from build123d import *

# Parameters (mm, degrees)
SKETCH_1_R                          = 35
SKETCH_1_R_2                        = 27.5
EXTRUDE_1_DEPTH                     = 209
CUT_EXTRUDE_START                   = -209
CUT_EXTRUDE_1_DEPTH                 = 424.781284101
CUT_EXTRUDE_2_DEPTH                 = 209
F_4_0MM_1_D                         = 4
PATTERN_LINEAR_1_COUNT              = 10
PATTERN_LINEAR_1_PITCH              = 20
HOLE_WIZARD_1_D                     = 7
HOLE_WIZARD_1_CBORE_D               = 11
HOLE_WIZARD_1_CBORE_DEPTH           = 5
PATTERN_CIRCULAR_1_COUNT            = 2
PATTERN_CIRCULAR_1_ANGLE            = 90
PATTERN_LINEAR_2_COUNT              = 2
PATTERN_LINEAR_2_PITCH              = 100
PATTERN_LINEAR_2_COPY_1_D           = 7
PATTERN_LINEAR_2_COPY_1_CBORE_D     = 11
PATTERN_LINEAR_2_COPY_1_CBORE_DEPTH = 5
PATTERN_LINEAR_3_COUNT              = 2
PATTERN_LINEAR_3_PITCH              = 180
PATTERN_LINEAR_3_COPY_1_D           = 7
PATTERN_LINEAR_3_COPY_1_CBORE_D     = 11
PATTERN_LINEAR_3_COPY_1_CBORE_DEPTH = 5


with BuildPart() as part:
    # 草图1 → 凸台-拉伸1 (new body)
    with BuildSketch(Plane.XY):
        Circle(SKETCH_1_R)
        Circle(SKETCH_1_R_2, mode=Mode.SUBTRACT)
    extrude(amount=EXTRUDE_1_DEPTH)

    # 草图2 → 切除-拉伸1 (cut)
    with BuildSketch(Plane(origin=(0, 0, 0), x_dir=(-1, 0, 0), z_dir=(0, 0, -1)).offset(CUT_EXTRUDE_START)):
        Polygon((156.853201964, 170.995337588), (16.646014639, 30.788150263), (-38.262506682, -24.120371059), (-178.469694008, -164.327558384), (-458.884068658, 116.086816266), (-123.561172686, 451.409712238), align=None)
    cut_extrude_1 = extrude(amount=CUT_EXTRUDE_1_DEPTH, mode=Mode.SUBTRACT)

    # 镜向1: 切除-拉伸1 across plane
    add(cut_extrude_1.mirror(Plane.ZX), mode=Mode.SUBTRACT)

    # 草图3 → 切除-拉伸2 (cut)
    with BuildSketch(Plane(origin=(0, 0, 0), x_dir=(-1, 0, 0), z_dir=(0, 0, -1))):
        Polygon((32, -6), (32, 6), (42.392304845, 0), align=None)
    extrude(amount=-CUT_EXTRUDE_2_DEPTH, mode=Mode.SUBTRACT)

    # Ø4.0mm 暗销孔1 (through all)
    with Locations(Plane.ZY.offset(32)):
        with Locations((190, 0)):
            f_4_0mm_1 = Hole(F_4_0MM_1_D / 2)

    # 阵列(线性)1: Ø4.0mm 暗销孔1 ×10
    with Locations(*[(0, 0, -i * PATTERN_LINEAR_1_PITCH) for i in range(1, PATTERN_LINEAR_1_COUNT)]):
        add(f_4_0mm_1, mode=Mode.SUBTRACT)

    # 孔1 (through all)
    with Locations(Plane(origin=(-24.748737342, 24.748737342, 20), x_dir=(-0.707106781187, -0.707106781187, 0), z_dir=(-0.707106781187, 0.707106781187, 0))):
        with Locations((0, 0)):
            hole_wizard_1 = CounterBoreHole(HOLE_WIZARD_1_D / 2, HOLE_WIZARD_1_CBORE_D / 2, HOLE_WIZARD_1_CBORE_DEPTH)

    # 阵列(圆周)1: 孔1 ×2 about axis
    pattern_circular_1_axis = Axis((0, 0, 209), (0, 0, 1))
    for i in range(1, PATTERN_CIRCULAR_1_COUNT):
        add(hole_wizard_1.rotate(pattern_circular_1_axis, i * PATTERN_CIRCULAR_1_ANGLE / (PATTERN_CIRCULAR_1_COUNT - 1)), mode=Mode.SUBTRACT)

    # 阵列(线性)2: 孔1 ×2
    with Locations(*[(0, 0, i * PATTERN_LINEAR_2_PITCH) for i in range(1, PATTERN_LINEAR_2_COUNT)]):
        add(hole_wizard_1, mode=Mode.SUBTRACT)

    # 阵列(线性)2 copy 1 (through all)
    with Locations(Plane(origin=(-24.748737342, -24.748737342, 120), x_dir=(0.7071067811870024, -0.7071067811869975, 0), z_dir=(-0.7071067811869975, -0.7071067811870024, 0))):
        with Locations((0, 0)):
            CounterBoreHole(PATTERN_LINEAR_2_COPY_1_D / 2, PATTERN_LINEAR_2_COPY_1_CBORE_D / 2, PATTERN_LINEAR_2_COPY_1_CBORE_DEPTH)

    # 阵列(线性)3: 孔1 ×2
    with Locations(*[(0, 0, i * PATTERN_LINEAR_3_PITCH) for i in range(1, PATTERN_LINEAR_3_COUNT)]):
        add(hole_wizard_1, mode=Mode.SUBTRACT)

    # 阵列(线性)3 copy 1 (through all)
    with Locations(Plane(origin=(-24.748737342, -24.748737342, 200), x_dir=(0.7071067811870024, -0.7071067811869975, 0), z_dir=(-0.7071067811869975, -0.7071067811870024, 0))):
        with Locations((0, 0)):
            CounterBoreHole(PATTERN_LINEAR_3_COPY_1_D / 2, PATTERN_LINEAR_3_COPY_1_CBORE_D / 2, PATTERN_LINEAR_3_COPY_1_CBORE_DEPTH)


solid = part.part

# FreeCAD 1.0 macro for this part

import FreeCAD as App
import Part
import Sketcher
Q = App.Units.Quantity


def add_polygon(sketch, points):
    """Adds a closed chain of lines whose ends are joined by coincident constraints."""
    first, n = sketch.GeometryCount, len(points)
    for a, b in zip(points, points[1:] + points[:1]):
        sketch.addGeometry(Part.LineSegment(App.Vector(*a, 0), App.Vector(*b, 0)), False)
    for i in range(n):
        sketch.addConstraint(Sketcher.Constraint("Coincident", first + i, 2, first + (i + 1) % n, 1))

doc = App.newDocument("Part")
body = doc.addObject("PartDesign::Body", "Body")

# Sketch on XY plane
sketch1 = doc.addObject("Sketcher::SketchObject", "Sketch")
body.addObject(sketch1)
sketch1.AttachmentSupport = (doc.XY_Plane, [""])
sketch1.MapMode = "FlatFace"
sketch1.addGeometry([
    Part.Circle(App.Vector(0, 0, 0), App.Vector(0, 0, 1), 35),
    Part.Circle(App.Vector(0, 0, 0), App.Vector(0, 0, 1), 28),
], False)
sketch1.addConstraint([
    Sketcher.Constraint("Coincident", 0, 3, -1, 1),
    Sketcher.Constraint("Coincident", 1, 3, -1, 1),
    Sketcher.Constraint("Diameter", 0, Q("70 mm")),
    Sketcher.Constraint("Diameter", 1, Q("55 mm")),
])
pad1 = doc.addObject("PartDesign::Pad", "Pad")
body.addObject(pad1)
pad1.Profile = sketch1
pad1.Length = 209

# Sketch on XY plane
sketch2 = doc.addObject("Sketcher::SketchObject", "Sketch001")
body.addObject(sketch2)
sketch2.AttachmentSupport = (doc.XY_Plane, [""])
sketch2.MapMode = "FlatFace"
sketch2.AttachmentOffset = App.Placement(App.Vector(0, 0, 209), App.Rotation())
add_polygon(sketch2, [(-17, 31), (-157, 171), (124, 451), (459, 116), (178, -164), (38, -24)])  # lines 0-5
sketch2.addConstraint([
    Sketcher.Constraint("Perpendicular", 0, 1),
    Sketcher.Constraint("Perpendicular", 1, 2),
    Sketcher.Constraint("Perpendicular", 2, 3),
    Sketcher.Constraint("Perpendicular", 3, 4),
    Sketcher.Constraint("Parallel", 4, 5),
    Sketcher.Constraint("Equal", 0, 4),
    Sketcher.Constraint("Angle", 0, Q("135 deg")),
    Sketcher.Constraint("DistanceX", 0, 2, -1, 1, Q("156.853202 mm")),
    Sketcher.Constraint("Distance", 1, Q("396.565812 mm")),
    Sketcher.Constraint("DistanceX", -1, 1, 2, 2, Q("458.884069 mm")),
    Sketcher.Constraint("DistanceY", 3, 2, -1, 1, Q("164.327558 mm")),
    Sketcher.Constraint("DistanceY", 4, 2, -1, 1, Q("24.120371 mm")),
])
pocket1 = doc.addObject("PartDesign::Pocket", "Pocket")
body.addObject(pocket1)
pocket1.Profile = sketch2
pocket1.Length = 424.781284
doc.recompute()

mirrored = doc.addObject("PartDesign::Mirrored", "Mirrored")
body.addObject(mirrored)
mirrored.Originals = [pocket1]
mirrored.MirrorPlane = (doc.XZ_Plane, [""])
body.Tip = mirrored

# Sketch on XY plane
sketch3 = doc.addObject("Sketcher::SketchObject", "Sketch002")
body.addObject(sketch3)
sketch3.AttachmentSupport = (doc.XY_Plane, [""])
sketch3.MapMode = "FlatFace"
add_polygon(sketch3, [(-32, 6), (-32, -6), (-42, 0)])  # lines 0-2
sketch3.addConstraint([
    Sketcher.Constraint("Vertical", 0),
    Sketcher.Constraint("PointOnObject", 1, 2, -1),
    Sketcher.Constraint("Equal", 1, 2),
    Sketcher.Constraint("DistanceY", 0, 2, 0, 1, Q("12 mm")),
    Sketcher.Constraint("Angle", 1, Q("150 deg")),
    Sketcher.Constraint("DistanceX", 0, 2, -1, 1, Q("32 mm")),
])
pocket2 = doc.addObject("PartDesign::Pocket", "Pocket001")
body.addObject(pocket2)
pocket2.Profile = sketch3
pocket2.Length = 209
pocket2.Reversed = True

# Sketch on YZ plane
sketch4 = doc.addObject("Sketcher::SketchObject", "Sketch003")
body.addObject(sketch4)
sketch4.AttachmentSupport = (doc.YZ_Plane, [""])
sketch4.MapMode = "FlatFace"
sketch4.AttachmentOffset = App.Placement(App.Vector(0, 0, -32), App.Rotation())
sketch4.addGeometry(Part.Circle(App.Vector(0, 190, 0), App.Vector(0, 0, 1), 2), False)
sketch4.addConstraint([
    Sketcher.Constraint("PointOnObject", 0, 3, -2),
    Sketcher.Constraint("Diameter", 0, Q("4 mm")),
    Sketcher.Constraint("DistanceY", -1, 1, 0, 3, Q("190 mm")),
])
doc.recompute()
hole = doc.addObject("PartDesign::Hole", "Hole")
body.addObject(hole)
hole.Profile = sketch4
hole.ThreadType = "None"
hole.Diameter = 4
hole.DepthType = "ThroughAll"
hole.Reversed = True
doc.recompute()

linearpattern = doc.addObject("PartDesign::LinearPattern", "LinearPattern")
body.addObject(linearpattern)
linearpattern.Originals = [hole]
linearpattern.Direction = (doc.Z_Axis, [""])
linearpattern.Mode = "offset"
linearpattern.Offset = 20
linearpattern.Occurrences = 10
linearpattern.Reversed = True
body.Tip = linearpattern

# Sketch on an angled plane
sketch5 = doc.addObject("Sketcher::SketchObject", "Sketch004")
body.addObject(sketch5)
sketch5.Placement = App.Placement(App.Vector(-24.748737, 24.748737, 0), App.Rotation(App.Vector(-0.707106781, -0.707106781, 0), App.Vector(0, 0, 0.999999999), App.Vector(-0.707106781, 0.707106781, 0), "ZXY"))
sketch5.addGeometry(Part.Circle(App.Vector(0, 20, 0), App.Vector(0, 0, 1), 3.5), False)
sketch5.addConstraint([
    Sketcher.Constraint("PointOnObject", 0, 3, -2),
    Sketcher.Constraint("Diameter", 0, Q("7 mm")),
    Sketcher.Constraint("DistanceY", -1, 1, 0, 3, Q("20 mm")),
])
doc.recompute()
hole2 = doc.addObject("PartDesign::Hole", "Hole001")
body.addObject(hole2)
hole2.Profile = sketch5
hole2.ThreadType = "None"
hole2.Diameter = 7
hole2.DepthType = "ThroughAll"
hole2.HoleCutType = "Counterbore"
hole2.HoleCutDiameter = 11
hole2.HoleCutDepth = 5
doc.recompute()

polarpattern = doc.addObject("PartDesign::PolarPattern", "PolarPattern")
body.addObject(polarpattern)
polarpattern.Originals = [hole2]
polarpattern.Axis = (doc.Z_Axis, [""])
polarpattern.Angle = 90
polarpattern.Occurrences = 2
body.Tip = polarpattern
doc.recompute()

linearpattern2 = doc.addObject("PartDesign::LinearPattern", "LinearPattern001")
body.addObject(linearpattern2)
linearpattern2.Originals = [hole2]
linearpattern2.Direction = (doc.Z_Axis, [""])
linearpattern2.Mode = "offset"
linearpattern2.Offset = 100
linearpattern2.Occurrences = 2
body.Tip = linearpattern2

# Sketch on an angled plane
sketch6 = doc.addObject("Sketcher::SketchObject", "Sketch005")
body.addObject(sketch6)
sketch6.Placement = App.Placement(App.Vector(-24.748737, -24.748737, 0), App.Rotation(App.Vector(0.707106781, -0.707106781, 0), App.Vector(0, 0, 0.999999999), App.Vector(-0.707106781, -0.707106781, 0), "ZXY"))
sketch6.addGeometry(Part.Circle(App.Vector(0, 120, 0), App.Vector(0, 0, 1), 3.5), False)
sketch6.addConstraint([
    Sketcher.Constraint("PointOnObject", 0, 3, -2),
    Sketcher.Constraint("Diameter", 0, Q("7 mm")),
    Sketcher.Constraint("DistanceY", -1, 1, 0, 3, Q("120 mm")),
])
doc.recompute()
hole3 = doc.addObject("PartDesign::Hole", "Hole002")
body.addObject(hole3)
hole3.Profile = sketch6
hole3.ThreadType = "None"
hole3.Diameter = 7
hole3.DepthType = "ThroughAll"
hole3.HoleCutType = "Counterbore"
hole3.HoleCutDiameter = 11
hole3.HoleCutDepth = 5
doc.recompute()

linearpattern3 = doc.addObject("PartDesign::LinearPattern", "LinearPattern002")
body.addObject(linearpattern3)
linearpattern3.Originals = [hole2]
linearpattern3.Direction = (doc.Z_Axis, [""])
linearpattern3.Mode = "offset"
linearpattern3.Offset = 180
linearpattern3.Occurrences = 2
body.Tip = linearpattern3

# Sketch on an angled plane
sketch7 = doc.addObject("Sketcher::SketchObject", "Sketch006")
body.addObject(sketch7)
sketch7.Placement = App.Placement(App.Vector(-24.748737, -24.748737, 0), App.Rotation(App.Vector(0.707106781, -0.707106781, 0), App.Vector(0, 0, 0.999999999), App.Vector(-0.707106781, -0.707106781, 0), "ZXY"))
sketch7.addGeometry(Part.Circle(App.Vector(0, 200, 0), App.Vector(0, 0, 1), 3.5), False)
sketch7.addConstraint([
    Sketcher.Constraint("PointOnObject", 0, 3, -2),
    Sketcher.Constraint("Diameter", 0, Q("7 mm")),
    Sketcher.Constraint("DistanceY", -1, 1, 0, 3, Q("200 mm")),
])
doc.recompute()
hole4 = doc.addObject("PartDesign::Hole", "Hole003")
body.addObject(hole4)
hole4.Profile = sketch7
hole4.ThreadType = "None"
hole4.Diameter = 7
hole4.DepthType = "ThroughAll"
hole4.HoleCutType = "Counterbore"
hole4.HoleCutDiameter = 11
hole4.HoleCutDepth = 5

doc.recompute()
